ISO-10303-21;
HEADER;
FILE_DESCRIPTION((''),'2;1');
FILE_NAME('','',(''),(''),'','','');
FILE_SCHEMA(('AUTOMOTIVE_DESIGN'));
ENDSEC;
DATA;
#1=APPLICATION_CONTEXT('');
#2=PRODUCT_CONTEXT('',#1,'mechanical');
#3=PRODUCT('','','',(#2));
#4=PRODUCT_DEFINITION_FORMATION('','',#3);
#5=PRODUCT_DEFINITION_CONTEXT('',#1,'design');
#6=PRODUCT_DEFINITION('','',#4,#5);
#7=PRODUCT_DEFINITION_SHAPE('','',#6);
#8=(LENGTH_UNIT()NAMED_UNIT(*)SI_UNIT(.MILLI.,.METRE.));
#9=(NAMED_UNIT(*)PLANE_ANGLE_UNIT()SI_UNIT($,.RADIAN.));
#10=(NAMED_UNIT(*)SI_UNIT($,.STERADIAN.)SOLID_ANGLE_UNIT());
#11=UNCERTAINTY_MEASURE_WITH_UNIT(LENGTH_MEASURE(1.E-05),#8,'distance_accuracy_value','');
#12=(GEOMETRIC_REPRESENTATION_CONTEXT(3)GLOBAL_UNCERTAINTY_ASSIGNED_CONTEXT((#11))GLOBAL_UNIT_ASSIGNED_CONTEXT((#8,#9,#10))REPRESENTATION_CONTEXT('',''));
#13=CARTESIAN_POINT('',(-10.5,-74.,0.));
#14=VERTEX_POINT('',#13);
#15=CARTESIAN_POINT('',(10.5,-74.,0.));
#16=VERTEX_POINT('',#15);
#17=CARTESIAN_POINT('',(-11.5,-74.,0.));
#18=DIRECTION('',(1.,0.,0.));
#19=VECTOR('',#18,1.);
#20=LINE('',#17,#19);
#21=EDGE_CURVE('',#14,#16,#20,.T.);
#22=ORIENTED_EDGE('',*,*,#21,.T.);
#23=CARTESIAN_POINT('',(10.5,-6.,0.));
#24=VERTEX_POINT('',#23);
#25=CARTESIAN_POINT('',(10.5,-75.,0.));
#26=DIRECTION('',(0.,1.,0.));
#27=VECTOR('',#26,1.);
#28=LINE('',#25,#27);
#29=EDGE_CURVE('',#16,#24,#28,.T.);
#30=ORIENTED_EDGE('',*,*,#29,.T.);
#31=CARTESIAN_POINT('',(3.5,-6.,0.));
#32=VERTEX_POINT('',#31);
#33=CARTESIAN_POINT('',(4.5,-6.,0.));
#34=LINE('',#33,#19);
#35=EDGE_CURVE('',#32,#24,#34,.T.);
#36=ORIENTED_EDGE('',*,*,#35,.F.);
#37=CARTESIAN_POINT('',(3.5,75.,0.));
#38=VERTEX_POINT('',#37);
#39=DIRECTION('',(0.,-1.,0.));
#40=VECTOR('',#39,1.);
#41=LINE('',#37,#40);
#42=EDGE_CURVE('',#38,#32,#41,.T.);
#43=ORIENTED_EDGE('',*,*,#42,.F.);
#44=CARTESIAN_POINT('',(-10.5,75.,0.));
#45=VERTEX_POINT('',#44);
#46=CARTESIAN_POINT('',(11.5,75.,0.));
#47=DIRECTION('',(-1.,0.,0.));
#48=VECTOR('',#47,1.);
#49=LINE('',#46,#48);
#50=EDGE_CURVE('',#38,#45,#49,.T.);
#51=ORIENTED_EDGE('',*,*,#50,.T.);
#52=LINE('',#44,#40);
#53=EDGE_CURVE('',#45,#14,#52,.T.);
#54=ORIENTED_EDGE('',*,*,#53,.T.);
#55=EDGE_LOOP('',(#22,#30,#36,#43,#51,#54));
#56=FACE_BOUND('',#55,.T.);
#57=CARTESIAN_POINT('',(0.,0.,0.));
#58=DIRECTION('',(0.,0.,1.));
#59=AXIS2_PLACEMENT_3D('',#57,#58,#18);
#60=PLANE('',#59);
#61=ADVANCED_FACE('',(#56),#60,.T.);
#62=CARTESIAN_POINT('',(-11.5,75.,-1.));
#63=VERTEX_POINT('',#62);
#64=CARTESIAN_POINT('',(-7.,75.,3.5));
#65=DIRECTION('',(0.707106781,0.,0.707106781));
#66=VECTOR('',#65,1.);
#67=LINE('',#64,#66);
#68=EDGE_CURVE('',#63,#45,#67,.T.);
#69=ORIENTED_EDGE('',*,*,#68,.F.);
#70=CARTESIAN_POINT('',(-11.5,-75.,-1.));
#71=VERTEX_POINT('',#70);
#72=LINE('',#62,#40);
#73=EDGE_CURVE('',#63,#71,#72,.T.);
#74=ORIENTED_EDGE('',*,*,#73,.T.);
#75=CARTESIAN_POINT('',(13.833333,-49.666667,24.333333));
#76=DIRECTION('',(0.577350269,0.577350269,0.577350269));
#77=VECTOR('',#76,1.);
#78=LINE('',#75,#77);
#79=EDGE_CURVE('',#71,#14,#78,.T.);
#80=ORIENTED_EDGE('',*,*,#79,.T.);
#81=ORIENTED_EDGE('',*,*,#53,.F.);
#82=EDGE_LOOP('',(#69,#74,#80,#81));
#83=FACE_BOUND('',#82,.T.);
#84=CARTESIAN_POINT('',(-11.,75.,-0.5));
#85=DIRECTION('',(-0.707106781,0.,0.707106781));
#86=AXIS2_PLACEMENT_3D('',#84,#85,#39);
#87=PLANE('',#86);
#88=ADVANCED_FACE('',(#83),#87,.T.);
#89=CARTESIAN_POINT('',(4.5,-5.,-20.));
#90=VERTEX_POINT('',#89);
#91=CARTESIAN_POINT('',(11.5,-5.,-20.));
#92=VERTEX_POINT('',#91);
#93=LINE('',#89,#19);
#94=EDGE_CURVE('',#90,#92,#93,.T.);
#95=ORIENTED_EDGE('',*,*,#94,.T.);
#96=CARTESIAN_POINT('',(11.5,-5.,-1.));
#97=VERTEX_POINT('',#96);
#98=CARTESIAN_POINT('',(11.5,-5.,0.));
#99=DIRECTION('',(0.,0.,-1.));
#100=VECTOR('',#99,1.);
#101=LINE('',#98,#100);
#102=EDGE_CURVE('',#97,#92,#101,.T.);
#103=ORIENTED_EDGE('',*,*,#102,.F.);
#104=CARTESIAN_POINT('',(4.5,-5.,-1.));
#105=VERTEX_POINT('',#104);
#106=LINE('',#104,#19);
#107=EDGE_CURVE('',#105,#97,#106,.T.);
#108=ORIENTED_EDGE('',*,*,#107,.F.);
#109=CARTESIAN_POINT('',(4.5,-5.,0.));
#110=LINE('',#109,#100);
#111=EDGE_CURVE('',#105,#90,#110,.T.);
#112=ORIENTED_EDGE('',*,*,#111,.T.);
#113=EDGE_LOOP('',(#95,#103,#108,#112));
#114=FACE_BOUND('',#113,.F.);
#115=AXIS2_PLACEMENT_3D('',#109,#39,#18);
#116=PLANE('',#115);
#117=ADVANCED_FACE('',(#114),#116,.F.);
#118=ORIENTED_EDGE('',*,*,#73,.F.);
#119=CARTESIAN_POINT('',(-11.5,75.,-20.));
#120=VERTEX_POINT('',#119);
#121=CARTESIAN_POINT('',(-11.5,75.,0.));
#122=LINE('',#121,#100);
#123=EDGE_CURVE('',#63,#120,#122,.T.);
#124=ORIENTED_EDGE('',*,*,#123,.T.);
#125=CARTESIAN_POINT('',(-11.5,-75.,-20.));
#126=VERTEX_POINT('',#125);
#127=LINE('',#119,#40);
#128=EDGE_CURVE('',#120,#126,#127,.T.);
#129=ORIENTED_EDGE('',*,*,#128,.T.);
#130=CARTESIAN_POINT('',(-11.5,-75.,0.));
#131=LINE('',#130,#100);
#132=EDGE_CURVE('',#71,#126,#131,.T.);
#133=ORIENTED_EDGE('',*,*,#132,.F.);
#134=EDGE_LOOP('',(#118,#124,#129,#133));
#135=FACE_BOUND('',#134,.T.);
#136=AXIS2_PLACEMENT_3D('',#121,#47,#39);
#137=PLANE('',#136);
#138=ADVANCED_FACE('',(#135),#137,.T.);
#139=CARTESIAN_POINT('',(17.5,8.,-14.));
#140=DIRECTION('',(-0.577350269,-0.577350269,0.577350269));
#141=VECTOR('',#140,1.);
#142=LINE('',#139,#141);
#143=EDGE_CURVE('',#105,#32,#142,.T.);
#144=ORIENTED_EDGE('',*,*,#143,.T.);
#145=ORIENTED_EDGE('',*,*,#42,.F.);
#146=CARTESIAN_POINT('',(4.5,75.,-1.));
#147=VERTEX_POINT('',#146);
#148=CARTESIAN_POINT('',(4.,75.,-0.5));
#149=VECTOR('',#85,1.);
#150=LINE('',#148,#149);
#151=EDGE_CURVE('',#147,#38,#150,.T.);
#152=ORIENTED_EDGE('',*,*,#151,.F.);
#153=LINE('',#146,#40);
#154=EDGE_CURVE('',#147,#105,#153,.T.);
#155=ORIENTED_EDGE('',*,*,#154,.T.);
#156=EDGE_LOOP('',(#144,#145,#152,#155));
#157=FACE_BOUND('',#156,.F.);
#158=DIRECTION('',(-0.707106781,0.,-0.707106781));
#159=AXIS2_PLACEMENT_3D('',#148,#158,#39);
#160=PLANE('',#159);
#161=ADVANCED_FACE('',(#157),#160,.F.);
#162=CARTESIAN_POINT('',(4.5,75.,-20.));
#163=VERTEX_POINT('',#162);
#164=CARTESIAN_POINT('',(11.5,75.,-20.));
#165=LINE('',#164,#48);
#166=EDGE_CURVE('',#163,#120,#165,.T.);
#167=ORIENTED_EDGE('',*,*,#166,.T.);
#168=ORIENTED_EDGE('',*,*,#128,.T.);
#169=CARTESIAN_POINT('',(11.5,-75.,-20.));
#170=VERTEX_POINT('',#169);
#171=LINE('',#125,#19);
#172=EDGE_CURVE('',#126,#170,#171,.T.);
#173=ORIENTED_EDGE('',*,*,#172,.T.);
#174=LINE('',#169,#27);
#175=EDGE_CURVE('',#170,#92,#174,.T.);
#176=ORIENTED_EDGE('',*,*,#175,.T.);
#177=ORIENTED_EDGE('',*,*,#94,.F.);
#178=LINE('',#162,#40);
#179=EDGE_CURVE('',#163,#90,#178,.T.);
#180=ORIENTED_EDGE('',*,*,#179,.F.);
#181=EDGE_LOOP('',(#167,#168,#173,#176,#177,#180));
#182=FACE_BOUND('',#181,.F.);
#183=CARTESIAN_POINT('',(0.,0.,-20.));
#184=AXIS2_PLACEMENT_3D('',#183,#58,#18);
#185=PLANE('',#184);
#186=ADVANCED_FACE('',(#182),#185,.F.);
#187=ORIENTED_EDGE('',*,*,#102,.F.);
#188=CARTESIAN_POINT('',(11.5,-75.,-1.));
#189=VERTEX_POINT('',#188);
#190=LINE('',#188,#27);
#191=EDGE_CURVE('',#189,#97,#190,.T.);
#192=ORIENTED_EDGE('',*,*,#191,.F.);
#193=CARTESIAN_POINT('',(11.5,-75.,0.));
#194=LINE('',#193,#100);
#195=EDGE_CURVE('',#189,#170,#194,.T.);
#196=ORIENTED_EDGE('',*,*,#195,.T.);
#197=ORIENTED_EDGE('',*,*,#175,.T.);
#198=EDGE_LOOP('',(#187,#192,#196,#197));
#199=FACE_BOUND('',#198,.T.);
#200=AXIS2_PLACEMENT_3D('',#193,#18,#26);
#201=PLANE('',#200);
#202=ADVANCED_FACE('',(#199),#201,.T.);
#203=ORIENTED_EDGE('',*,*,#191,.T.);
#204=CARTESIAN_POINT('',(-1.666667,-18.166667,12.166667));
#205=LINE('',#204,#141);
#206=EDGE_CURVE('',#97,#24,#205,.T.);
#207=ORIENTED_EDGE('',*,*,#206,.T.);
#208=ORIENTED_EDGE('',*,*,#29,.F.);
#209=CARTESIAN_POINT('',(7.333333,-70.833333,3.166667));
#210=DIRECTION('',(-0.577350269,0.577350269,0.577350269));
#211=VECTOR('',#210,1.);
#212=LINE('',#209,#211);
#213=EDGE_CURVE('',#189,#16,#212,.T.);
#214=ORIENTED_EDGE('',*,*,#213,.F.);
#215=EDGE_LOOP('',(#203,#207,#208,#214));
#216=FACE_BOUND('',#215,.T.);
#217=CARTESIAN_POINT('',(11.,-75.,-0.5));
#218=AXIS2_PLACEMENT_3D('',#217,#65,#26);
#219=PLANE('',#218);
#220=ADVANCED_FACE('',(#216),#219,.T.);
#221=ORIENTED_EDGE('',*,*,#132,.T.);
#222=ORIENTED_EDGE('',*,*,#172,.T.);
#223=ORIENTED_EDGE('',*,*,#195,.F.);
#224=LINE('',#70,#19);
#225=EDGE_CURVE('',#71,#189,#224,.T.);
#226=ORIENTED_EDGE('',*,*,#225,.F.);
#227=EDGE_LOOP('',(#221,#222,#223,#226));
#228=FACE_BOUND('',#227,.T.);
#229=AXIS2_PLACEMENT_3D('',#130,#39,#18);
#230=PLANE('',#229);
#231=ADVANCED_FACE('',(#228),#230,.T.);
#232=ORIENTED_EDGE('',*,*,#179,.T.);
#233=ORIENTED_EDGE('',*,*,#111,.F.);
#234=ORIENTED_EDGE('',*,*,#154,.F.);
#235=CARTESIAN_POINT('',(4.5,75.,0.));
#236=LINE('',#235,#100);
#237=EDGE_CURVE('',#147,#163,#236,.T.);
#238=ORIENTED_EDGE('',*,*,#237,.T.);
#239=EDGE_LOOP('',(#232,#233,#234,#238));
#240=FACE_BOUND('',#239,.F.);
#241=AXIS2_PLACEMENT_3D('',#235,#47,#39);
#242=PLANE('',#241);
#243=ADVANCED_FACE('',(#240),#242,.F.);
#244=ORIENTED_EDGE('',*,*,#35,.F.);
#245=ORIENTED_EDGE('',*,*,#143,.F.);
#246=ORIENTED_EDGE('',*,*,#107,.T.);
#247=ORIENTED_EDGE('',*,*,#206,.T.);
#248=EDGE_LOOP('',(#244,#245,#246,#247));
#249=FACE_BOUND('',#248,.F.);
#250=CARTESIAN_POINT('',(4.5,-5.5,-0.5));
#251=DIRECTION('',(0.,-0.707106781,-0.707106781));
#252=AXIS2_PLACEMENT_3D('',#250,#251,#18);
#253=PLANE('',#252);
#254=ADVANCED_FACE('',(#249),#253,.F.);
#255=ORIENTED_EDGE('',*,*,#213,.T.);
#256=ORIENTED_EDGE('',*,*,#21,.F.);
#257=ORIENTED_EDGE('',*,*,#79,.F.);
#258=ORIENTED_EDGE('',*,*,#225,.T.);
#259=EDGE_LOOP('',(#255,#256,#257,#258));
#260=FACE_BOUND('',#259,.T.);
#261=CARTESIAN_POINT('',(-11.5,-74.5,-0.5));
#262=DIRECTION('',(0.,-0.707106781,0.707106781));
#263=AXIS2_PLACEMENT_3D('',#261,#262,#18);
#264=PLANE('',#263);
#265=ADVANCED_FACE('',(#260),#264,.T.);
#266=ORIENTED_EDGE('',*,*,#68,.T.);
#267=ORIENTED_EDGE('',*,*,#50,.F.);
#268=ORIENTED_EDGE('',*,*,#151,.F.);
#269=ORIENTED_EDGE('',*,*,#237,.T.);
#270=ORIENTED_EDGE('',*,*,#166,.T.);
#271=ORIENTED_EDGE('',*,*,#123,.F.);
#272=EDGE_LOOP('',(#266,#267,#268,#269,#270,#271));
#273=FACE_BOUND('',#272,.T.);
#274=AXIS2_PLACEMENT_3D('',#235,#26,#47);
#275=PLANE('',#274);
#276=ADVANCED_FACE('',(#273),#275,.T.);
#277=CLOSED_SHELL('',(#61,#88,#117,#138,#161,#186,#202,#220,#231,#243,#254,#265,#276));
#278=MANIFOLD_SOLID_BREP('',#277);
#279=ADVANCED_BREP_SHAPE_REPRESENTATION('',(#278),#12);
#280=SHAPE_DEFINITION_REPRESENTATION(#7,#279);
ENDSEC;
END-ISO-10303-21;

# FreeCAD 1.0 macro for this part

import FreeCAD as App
import Part
import Sketcher

V = App.Vector
Q = App.Units.Quantity


def edges_at(feature, points):
    """Names of the edges that pass closest to the given points."""
    edges = feature.Shape.Edges
    near = lambda p: min(range(len(edges)), key=lambda i: edges[i].distToShape(Part.Vertex(*p))[0])
    return sorted({f"Edge{near(p) + 1}" for p in points})

doc = App.newDocument("Part")
body = doc.addObject("PartDesign::Body", "Body")

# Sketch on XY plane
sketch1 = body.newObject("Sketcher::SketchObject", "Sketch")
sketch1.AttachmentSupport = (doc.getObject("XY_Plane"), [""])
sketch1.MapMode = "FlatFace"
sketch1.addGeometry([
    Part.LineSegment(V(-12, 75, 0), V(-12, -75, 0)),  # 0
    Part.LineSegment(V(-12, -75, 0), V(12, -75, 0)),  # 1
    Part.LineSegment(V(12, -75, 0), V(12, -5, 0)),  # 2
    Part.LineSegment(V(12, -5, 0), V(4, -5, 0)),  # 3
    Part.LineSegment(V(4, -5, 0), V(4, 75, 0)),  # 4
    Part.LineSegment(V(4, 75, 0), V(-12, 75, 0)),  # 5
], False)
sketch1.addConstraint([
    Sketcher.Constraint("Coincident", 0, 2, 1, 1),
    Sketcher.Constraint("Coincident", 1, 2, 2, 1),
    Sketcher.Constraint("Coincident", 2, 2, 3, 1),
    Sketcher.Constraint("Coincident", 3, 2, 4, 1),
    Sketcher.Constraint("Coincident", 4, 2, 5, 1),
    Sketcher.Constraint("Coincident", 5, 2, 0, 1),
    Sketcher.Constraint("Vertical", 0),
    Sketcher.Constraint("Horizontal", 1),
    Sketcher.Constraint("Vertical", 2),
    Sketcher.Constraint("Horizontal", 3),
    Sketcher.Constraint("Vertical", 4),
    Sketcher.Constraint("Horizontal", 5),
    Sketcher.Constraint("Symmetric", 1, 2, 5, 2, -1, 1),
    Sketcher.Constraint("DistanceX", 1, 1, 1, 2, Q("23 mm")),
    Sketcher.Constraint("DistanceX", 3, 2, 3, 1, Q("7 mm")),
    Sketcher.Constraint("DistanceY", 0, 2, 0, 1, Q("150 mm")),
    Sketcher.Constraint("DistanceY", 4, 1, 4, 2, Q("80 mm")),
])
pad1 = body.newObject("PartDesign::Pad", "Pad")
pad1.Profile = sketch1
pad1.Length = 20
pad1.Reversed = True
doc.recompute()

chamfer = body.newObject("PartDesign::Chamfer", "Chamfer")
chamfer.Base = (pad1, edges_at(pad1, [
    (11.5, -40, 0),
    (0, -75, 0),
    (-11.5, 0, 0),
    (4.5, 35, 0),
    (8, -5, 0),
]))
chamfer.Size = 1

doc.recompute()
